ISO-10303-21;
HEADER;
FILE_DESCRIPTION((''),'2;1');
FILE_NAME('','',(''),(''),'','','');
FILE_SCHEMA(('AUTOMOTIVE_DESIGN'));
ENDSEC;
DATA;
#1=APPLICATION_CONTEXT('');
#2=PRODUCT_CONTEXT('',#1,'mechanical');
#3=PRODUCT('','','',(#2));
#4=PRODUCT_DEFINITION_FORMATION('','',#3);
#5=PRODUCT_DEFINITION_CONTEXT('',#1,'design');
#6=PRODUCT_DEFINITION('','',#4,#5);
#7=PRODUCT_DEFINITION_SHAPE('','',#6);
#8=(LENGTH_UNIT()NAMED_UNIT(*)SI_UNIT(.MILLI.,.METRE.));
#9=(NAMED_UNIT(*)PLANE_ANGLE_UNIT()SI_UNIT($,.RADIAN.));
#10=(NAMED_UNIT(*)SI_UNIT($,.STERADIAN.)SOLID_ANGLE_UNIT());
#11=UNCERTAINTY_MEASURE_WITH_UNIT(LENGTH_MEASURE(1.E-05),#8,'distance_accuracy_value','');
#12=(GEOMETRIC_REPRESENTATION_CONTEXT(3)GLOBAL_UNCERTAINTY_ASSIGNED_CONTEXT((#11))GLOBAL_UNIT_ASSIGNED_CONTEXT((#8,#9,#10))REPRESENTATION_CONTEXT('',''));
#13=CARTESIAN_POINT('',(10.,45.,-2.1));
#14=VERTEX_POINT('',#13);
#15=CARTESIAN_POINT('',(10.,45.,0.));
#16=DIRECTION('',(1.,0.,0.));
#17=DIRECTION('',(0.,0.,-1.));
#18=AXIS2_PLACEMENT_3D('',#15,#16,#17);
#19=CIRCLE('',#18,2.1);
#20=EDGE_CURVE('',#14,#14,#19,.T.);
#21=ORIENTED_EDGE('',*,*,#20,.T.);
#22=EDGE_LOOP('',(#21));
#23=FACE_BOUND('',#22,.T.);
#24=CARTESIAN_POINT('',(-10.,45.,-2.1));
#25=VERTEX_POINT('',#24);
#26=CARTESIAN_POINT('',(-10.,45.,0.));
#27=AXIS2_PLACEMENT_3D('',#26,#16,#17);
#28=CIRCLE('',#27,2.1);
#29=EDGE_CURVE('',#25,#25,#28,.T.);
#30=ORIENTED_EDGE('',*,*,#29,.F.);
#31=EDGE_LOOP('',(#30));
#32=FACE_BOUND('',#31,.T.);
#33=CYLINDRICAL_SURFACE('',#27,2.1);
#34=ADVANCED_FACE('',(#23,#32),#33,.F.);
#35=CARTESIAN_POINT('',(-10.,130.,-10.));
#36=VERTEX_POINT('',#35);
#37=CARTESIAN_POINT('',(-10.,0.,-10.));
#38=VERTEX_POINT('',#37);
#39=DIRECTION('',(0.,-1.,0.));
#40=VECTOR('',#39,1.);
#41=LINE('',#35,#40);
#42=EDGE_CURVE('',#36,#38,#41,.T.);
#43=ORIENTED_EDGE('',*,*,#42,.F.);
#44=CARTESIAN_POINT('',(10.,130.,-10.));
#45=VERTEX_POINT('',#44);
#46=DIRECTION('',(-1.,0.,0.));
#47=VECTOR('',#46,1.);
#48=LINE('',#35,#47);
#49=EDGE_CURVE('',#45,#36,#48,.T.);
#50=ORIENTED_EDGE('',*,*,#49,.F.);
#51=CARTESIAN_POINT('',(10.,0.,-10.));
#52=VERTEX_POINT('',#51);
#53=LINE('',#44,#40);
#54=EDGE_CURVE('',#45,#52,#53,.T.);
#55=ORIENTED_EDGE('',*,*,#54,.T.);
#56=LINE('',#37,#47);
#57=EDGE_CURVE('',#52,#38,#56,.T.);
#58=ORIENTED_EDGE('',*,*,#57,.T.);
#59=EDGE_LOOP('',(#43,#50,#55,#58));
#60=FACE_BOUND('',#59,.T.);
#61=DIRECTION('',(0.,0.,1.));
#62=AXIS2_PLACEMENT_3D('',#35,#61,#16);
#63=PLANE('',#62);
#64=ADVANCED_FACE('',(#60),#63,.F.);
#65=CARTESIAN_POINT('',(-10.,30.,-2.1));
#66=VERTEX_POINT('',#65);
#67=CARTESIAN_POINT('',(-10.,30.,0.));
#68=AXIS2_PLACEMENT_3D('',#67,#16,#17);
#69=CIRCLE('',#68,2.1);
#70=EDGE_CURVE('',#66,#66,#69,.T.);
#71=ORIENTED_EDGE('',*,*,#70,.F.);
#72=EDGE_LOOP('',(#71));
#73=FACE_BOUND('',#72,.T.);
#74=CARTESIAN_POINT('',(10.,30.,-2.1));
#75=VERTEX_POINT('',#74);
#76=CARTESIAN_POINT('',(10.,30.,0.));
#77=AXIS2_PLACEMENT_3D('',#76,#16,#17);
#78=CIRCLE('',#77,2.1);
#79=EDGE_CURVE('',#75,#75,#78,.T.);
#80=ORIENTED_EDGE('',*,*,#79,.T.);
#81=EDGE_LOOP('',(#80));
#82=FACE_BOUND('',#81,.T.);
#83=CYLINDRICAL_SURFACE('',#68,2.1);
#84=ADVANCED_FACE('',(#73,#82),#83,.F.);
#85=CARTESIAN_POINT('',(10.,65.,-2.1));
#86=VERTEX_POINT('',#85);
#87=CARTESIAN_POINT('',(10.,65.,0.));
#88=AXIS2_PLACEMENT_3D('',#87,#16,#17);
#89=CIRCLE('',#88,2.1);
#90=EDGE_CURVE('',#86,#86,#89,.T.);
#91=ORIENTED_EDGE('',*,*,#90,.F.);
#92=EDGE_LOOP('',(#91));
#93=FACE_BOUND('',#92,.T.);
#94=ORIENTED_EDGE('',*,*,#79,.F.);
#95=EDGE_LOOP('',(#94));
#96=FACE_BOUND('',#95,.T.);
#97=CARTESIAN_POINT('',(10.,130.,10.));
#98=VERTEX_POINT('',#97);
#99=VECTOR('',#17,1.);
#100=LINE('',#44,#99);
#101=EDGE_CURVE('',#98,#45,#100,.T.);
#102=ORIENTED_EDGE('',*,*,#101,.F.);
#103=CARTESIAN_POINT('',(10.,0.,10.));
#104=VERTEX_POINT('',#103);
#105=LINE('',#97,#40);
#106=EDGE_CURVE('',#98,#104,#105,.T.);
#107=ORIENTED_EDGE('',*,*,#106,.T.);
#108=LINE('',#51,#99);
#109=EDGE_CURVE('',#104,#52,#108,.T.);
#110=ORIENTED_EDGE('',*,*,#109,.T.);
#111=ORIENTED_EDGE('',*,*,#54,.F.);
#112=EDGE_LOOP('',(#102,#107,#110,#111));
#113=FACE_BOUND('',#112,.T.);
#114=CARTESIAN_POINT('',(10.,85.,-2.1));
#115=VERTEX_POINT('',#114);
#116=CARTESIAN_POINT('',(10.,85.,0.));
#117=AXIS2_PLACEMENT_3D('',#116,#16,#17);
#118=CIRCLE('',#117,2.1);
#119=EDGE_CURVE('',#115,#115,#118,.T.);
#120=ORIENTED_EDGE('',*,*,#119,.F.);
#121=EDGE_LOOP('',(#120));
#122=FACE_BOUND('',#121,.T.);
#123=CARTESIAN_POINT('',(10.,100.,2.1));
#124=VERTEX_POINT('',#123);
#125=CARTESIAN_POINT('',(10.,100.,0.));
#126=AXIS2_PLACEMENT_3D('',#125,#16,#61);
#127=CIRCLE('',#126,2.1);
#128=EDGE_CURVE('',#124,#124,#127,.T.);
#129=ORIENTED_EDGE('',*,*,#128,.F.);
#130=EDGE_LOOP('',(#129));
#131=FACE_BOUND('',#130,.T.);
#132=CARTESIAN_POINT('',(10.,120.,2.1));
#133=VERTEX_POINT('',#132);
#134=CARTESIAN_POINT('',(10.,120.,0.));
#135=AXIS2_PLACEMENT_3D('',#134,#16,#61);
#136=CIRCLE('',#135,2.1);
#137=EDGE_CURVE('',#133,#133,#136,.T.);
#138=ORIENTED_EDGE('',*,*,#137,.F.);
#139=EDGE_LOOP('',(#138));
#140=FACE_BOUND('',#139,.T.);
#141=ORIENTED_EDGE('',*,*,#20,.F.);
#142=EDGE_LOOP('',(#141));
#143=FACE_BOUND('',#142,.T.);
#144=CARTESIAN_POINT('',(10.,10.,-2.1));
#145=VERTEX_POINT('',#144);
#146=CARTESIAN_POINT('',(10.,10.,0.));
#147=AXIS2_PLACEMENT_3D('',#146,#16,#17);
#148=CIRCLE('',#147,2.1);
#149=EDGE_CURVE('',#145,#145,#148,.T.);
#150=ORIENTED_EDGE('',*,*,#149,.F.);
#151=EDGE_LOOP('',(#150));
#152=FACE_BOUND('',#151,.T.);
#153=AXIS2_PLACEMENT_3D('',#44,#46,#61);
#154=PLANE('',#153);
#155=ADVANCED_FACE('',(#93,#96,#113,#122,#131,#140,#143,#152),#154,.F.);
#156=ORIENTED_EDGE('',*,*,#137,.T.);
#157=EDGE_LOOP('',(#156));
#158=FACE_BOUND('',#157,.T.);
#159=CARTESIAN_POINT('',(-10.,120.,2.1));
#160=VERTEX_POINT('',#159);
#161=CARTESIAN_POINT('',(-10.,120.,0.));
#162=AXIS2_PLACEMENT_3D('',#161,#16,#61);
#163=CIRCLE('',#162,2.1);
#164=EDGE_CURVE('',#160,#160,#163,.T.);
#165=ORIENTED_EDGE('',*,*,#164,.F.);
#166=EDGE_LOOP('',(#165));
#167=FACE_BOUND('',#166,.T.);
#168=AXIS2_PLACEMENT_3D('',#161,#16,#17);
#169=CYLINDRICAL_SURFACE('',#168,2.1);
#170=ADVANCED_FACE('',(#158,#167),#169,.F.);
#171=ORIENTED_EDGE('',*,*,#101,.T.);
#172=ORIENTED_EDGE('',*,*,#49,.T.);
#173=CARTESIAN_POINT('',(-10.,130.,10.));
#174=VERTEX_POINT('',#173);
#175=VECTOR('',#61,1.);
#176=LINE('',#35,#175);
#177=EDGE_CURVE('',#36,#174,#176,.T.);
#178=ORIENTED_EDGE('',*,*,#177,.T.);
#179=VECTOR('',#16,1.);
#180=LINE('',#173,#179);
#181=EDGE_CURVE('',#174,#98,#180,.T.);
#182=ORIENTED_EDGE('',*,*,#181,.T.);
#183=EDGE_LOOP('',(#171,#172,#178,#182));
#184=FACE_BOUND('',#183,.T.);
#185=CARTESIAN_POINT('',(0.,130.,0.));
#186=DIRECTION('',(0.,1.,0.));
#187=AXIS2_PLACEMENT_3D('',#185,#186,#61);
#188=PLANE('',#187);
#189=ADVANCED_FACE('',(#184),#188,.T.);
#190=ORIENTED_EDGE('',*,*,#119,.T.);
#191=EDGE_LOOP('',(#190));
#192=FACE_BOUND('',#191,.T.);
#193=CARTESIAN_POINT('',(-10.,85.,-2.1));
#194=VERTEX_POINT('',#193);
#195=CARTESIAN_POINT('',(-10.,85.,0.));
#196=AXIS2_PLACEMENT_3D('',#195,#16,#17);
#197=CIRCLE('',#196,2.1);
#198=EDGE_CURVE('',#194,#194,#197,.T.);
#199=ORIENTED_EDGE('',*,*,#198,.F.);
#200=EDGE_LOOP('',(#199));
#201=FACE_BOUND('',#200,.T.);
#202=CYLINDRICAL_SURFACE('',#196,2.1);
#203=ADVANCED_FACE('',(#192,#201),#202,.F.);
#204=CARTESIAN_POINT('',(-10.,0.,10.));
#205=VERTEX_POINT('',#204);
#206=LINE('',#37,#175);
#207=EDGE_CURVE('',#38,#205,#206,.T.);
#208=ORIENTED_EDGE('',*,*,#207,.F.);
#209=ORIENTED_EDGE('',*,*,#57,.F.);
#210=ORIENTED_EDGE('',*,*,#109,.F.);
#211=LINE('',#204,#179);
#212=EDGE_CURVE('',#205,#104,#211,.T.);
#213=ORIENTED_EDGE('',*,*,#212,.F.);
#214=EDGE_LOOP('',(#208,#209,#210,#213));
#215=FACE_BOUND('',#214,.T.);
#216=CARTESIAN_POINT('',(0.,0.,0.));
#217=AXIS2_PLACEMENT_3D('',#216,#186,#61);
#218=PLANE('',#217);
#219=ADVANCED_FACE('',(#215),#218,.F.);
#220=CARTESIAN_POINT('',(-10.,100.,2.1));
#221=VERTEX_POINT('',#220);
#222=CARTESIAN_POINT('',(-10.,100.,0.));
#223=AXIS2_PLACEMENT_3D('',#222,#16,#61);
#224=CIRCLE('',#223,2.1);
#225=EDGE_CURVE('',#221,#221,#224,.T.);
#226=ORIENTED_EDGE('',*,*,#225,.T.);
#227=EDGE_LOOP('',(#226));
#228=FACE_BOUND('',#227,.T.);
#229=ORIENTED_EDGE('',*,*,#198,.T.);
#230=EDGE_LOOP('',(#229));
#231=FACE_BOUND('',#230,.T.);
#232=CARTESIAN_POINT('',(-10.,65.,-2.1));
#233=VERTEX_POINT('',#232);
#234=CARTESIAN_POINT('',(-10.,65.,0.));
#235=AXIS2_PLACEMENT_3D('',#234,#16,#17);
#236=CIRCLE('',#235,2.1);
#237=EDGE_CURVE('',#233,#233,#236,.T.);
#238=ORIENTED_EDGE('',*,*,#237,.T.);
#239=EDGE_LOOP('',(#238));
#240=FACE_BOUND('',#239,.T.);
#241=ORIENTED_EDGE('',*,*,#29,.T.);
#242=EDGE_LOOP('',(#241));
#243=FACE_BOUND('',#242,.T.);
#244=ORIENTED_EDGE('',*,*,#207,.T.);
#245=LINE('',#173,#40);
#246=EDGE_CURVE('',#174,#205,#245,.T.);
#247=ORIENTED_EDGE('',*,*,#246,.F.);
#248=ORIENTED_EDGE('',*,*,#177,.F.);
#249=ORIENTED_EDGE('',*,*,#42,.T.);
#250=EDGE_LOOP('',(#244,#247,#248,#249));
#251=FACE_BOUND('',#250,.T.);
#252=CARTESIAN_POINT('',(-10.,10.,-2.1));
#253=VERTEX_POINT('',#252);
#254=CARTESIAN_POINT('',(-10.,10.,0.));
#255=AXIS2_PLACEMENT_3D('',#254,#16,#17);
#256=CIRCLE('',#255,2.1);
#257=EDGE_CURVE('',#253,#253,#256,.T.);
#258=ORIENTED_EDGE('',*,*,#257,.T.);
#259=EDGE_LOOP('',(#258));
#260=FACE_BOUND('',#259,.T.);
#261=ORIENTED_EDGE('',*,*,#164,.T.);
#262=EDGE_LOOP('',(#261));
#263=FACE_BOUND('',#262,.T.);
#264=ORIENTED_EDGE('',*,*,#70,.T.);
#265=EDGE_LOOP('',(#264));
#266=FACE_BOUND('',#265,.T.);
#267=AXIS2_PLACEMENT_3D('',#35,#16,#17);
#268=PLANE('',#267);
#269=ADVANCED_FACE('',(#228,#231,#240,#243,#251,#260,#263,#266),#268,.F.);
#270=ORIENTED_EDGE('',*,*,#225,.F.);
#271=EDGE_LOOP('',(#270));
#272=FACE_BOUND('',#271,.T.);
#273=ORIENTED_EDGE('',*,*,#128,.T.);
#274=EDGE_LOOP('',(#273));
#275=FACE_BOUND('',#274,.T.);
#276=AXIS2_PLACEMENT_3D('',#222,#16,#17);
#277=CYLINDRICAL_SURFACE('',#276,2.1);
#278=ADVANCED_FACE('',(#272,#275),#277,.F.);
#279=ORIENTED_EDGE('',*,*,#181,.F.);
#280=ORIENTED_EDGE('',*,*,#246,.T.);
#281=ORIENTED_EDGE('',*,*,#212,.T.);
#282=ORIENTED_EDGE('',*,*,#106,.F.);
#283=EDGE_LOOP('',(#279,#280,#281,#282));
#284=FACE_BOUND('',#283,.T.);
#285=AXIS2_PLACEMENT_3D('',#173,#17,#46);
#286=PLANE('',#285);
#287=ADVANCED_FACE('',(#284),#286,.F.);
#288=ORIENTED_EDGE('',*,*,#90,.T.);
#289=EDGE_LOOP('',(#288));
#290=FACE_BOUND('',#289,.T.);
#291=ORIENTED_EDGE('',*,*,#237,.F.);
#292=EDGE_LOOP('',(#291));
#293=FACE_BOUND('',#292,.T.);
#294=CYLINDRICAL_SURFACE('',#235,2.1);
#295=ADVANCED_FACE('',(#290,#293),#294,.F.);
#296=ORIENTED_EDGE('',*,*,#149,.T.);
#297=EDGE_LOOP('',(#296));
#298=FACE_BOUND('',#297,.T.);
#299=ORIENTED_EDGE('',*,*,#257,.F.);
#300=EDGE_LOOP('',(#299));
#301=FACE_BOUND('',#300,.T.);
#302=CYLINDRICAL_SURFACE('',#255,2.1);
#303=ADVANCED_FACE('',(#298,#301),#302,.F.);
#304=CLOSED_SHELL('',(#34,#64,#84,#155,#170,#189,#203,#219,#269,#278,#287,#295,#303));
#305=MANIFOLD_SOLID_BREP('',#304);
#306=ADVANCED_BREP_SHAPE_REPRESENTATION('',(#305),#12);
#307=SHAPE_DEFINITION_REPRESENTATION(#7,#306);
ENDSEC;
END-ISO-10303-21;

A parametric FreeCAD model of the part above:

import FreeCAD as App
import Part
import Sketcher

doc = App.newDocument("Part")
body = doc.addObject("PartDesign::Body", "Body")

# Sketch on XZ plane
sketch1 = doc.addObject("Sketcher::SketchObject", "Sketch")
body.addObject(sketch1)
sketch1.AttachmentSupport = (doc.XZ_Plane, [""])
sketch1.MapMode = "FlatFace"
sketch1.addGeometry([
    Part.LineSegment(App.Vector(-10, -10, 0), App.Vector(-10, 10, 0)),
    Part.LineSegment(App.Vector(-10, 10, 0), App.Vector(10, 10, 0)),
    Part.LineSegment(App.Vector(10, 10, 0), App.Vector(10, -10, 0)),
    Part.LineSegment(App.Vector(10, -10, 0), App.Vector(-10, -10, 0)),
], False)
sketch1.addConstraint([
    Sketcher.Constraint("Coincident", 0, 2, 1, 1),
    Sketcher.Constraint("Coincident", 1, 2, 2, 1),
    Sketcher.Constraint("Coincident", 2, 2, 3, 1),
    Sketcher.Constraint("Coincident", 3, 2, 0, 1),
    Sketcher.Constraint("Vertical", 0),
    Sketcher.Constraint("Horizontal", 1),
    Sketcher.Constraint("Vertical", 2),
    Sketcher.Constraint("Horizontal", 3),
    Sketcher.Constraint("Symmetric", 0, 2, 2, 2, -1, 1),
    Sketcher.Constraint("Equal", 3, 0),
    Sketcher.Constraint("DistanceX", 1, 1, 1, 2, 20.0),
])
pad1 = doc.addObject("PartDesign::Pad", "Pad")
body.addObject(pad1)
pad1.Profile = sketch1
pad1.Length = 130
pad1.Reversed = True

# Sketch on YZ plane
sketch2 = doc.addObject("Sketcher::SketchObject", "Sketch001")
body.addObject(sketch2)
sketch2.AttachmentSupport = (doc.YZ_Plane, [""])
sketch2.MapMode = "FlatFace"
sketch2.AttachmentOffset = App.Placement(App.Vector(0, 0, 10), App.Rotation())
sketch2.addGeometry([
    Part.Circle(App.Vector(45, 0, 0), App.Vector(0, 0, 1), 2.1),  # 0
    Part.Circle(App.Vector(65, 0, 0), App.Vector(0, 0, 1), 2.1),  # 1
    Part.Circle(App.Vector(85, 0, 0), App.Vector(0, 0, 1), 2.1),  # 2
    Part.Circle(App.Vector(10, 0, 0), App.Vector(0, 0, 1), 2.1),  # 3
    Part.Circle(App.Vector(30, 0, 0), App.Vector(0, 0, 1), 2.1),  # 4
    Part.Circle(App.Vector(100, 0, 0), App.Vector(0, 0, 1), 2.1),  # 5
    Part.Circle(App.Vector(120, 0, 0), App.Vector(0, 0, 1), 2.1),  # 6
], False)
sketch2.addConstraint([
    Sketcher.Constraint("Equal", 0, 1),
    Sketcher.Constraint("Equal", 1, 2),
    Sketcher.Constraint("Equal", 2, 3),
    Sketcher.Constraint("Equal", 3, 4),
    Sketcher.Constraint("Equal", 4, 5),
    Sketcher.Constraint("Equal", 5, 6),
    Sketcher.Constraint("PointOnObject", 0, 3, -1),
    Sketcher.Constraint("PointOnObject", 1, 3, -1),
    Sketcher.Constraint("PointOnObject", 2, 3, -1),
    Sketcher.Constraint("PointOnObject", 3, 3, -1),
    Sketcher.Constraint("PointOnObject", 4, 3, -1),
    Sketcher.Constraint("PointOnObject", 5, 3, -1),
    Sketcher.Constraint("PointOnObject", 6, 3, -1),
    Sketcher.Constraint("Diameter", 0, 4.2),
    Sketcher.Constraint("DistanceX", -1, 1, 0, 3, 45.0),
    Sketcher.Constraint("DistanceX", -1, 1, 1, 3, 65.0),
    Sketcher.Constraint("DistanceX", -1, 1, 2, 3, 85.0),
    Sketcher.Constraint("DistanceX", -1, 1, 3, 3, 10.0),
    Sketcher.Constraint("DistanceX", -1, 1, 4, 3, 30.0),
    Sketcher.Constraint("DistanceX", -1, 1, 5, 3, 100.0),
    Sketcher.Constraint("DistanceX", -1, 1, 6, 3, 120.0),
])
pocket1 = doc.addObject("PartDesign::Pocket", "Pocket")
body.addObject(pocket1)
pocket1.Profile = sketch2
pocket1.Type = "ThroughAll"

doc.recompute()
